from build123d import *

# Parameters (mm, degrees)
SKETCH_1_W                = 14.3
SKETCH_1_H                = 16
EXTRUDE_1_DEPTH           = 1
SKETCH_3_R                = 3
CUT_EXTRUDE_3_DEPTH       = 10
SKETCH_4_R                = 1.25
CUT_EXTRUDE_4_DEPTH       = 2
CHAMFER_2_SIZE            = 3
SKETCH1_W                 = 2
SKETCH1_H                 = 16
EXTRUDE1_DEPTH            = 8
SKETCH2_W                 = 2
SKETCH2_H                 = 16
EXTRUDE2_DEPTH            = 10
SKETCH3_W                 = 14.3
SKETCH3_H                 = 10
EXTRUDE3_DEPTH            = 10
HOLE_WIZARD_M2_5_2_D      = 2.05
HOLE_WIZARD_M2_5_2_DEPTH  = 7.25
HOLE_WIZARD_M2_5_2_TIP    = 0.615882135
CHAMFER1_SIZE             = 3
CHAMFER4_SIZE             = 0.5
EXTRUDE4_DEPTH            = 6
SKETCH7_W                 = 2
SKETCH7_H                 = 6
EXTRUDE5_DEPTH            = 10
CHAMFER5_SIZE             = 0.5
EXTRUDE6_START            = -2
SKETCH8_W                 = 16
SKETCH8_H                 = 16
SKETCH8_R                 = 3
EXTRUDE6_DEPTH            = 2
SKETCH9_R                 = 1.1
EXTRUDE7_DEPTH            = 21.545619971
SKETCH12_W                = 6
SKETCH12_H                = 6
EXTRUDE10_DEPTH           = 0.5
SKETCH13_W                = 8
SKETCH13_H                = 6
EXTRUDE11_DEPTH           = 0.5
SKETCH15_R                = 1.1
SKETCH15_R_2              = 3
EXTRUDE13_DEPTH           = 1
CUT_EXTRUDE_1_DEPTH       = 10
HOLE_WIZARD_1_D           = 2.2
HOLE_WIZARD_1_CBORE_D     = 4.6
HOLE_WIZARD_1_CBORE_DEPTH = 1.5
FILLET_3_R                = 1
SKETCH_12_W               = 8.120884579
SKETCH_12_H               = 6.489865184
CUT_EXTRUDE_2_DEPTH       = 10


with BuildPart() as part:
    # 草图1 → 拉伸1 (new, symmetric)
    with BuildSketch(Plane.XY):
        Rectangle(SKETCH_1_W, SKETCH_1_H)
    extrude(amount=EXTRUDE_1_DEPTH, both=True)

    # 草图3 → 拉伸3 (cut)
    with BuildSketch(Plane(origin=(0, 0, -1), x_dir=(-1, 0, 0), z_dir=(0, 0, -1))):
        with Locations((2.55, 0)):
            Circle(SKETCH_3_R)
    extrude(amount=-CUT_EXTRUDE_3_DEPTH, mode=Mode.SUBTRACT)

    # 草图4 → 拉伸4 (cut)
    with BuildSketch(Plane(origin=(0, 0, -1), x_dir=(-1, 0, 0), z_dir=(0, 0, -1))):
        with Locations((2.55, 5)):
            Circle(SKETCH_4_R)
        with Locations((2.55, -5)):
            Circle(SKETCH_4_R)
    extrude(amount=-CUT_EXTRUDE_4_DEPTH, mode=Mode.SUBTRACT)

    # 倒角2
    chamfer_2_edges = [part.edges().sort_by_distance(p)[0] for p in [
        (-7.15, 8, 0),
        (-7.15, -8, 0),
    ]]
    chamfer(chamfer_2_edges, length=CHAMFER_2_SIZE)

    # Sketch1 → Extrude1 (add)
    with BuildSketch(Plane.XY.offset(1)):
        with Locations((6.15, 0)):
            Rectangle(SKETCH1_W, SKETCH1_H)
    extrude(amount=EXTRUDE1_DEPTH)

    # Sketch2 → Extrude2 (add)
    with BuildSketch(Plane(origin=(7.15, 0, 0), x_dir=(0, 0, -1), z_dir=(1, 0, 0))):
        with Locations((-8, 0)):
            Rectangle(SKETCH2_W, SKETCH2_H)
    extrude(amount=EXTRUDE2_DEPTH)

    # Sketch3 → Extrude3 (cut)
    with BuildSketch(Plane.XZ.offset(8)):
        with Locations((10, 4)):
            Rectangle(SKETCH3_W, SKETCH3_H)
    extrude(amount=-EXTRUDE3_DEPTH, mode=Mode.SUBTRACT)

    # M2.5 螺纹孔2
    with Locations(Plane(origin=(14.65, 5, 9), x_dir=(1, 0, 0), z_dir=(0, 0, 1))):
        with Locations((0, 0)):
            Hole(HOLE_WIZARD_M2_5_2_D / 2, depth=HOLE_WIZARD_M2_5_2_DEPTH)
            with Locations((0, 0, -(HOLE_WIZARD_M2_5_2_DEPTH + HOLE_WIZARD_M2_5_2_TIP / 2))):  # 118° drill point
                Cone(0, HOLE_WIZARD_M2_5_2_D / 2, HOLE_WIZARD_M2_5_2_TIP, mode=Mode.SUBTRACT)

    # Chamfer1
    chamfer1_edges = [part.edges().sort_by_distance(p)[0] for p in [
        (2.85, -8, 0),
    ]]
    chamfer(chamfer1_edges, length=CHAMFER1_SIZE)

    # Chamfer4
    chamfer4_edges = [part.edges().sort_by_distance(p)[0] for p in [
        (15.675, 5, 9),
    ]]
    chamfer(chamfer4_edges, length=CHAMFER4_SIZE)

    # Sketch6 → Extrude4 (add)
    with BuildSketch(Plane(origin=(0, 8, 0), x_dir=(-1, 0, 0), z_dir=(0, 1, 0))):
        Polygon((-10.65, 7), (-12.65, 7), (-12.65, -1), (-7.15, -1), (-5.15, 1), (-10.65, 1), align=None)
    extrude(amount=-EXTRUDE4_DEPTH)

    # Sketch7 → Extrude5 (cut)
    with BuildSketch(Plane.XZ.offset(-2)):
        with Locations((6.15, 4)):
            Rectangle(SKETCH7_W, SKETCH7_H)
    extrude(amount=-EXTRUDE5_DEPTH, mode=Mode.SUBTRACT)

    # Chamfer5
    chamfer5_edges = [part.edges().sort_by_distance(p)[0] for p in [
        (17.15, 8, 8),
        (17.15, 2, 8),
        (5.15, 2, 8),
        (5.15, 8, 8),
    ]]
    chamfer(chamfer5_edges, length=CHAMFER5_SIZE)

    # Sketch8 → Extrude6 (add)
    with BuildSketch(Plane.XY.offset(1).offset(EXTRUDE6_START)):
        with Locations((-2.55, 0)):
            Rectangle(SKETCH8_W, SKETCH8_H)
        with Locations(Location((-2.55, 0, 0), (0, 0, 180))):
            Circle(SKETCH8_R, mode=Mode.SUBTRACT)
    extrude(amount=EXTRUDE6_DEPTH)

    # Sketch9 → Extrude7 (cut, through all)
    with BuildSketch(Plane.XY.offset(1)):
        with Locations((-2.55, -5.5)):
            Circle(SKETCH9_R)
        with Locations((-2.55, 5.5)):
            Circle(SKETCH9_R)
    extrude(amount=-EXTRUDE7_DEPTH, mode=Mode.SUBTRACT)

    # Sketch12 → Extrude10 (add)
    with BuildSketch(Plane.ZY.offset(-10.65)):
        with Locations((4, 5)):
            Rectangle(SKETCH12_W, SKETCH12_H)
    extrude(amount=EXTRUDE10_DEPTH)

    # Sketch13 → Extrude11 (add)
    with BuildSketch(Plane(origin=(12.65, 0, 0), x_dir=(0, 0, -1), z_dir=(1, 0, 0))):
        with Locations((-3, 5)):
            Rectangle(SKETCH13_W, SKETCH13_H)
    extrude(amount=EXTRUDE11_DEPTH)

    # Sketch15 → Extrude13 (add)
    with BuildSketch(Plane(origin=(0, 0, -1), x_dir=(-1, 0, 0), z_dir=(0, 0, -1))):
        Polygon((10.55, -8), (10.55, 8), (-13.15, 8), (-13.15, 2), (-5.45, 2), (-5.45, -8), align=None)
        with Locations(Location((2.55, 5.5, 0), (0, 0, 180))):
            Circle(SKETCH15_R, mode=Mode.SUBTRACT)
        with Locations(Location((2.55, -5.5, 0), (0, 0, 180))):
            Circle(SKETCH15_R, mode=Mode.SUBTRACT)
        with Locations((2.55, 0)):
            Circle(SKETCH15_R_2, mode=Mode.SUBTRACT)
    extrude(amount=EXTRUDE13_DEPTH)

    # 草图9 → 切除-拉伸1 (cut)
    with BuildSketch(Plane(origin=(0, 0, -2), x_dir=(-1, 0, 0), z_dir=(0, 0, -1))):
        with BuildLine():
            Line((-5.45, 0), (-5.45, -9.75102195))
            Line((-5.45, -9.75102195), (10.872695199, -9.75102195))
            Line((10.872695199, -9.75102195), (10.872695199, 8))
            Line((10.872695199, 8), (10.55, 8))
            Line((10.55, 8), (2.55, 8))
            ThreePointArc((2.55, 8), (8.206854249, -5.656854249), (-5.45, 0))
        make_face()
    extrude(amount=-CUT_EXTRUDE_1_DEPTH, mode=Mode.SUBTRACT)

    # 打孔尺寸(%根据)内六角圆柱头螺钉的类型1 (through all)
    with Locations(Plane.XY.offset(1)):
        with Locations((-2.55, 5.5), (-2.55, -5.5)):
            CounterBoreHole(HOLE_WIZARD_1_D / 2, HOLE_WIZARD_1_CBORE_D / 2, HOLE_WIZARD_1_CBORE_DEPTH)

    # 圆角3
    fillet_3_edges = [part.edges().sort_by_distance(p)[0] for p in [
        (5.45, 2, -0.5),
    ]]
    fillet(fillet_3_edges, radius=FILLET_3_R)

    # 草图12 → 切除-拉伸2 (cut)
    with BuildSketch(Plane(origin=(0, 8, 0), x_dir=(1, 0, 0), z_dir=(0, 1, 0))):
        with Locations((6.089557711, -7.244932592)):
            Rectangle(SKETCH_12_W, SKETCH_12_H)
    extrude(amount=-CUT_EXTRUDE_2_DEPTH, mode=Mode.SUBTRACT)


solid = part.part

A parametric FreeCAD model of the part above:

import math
import FreeCAD as App
import Part
import Sketcher
Q = App.Units.Quantity


def edges_at(feature, points):
    """Names of the edges that pass closest to the given points."""
    edges = feature.Shape.Edges
    near = lambda p: min(range(len(edges)), key=lambda i: edges[i].distToShape(Part.Vertex(*p))[0])
    return sorted({f"Edge{near(p) + 1}" for p in points})


def add_polygon(sketch, points):
    """Adds a closed chain of lines whose ends are joined by coincident constraints."""
    first, n = sketch.GeometryCount, len(points)
    for a, b in zip(points, points[1:] + points[:1]):
        sketch.addGeometry(Part.LineSegment(App.Vector(*a, 0), App.Vector(*b, 0)), False)
    for i in range(n):
        sketch.addConstraint(Sketcher.Constraint("Coincident", first + i, 2, first + (i + 1) % n, 1))

doc = App.newDocument("Part")
params = doc.addObject("Spreadsheet::Sheet", "Params")
for row, (alias, value) in enumerate([
    ("sketch1_height", "16 mm"),
    ("sketch1_width", "14.3 mm"),
    ("pad1_length", "2 mm"),
    ("sketch2_diameter", "6 mm"),
    ("pocket1_length", "10 mm"),
    ("sketch3_diameter", "2.5 mm"),
    ("pocket2_length", "2 mm"),
    ("chamfer_size", "3 mm"),
    ("sketch4_width", "2 mm"),
    ("sketch4_height", "16 mm"),
    ("pad2_length", "8 mm"),
    ("sketch5_width", "16 mm"),
    ("sketch5_height", "2 mm"),
    ("pad3_length", "10 mm"),
    ("sketch6_height", "10 mm"),
    ("sketch6_width", "14.3 mm"),
    ("pocket3_length", "10 mm"),
    ("sketch7_diameter", "2.05 mm"),
    ("hole_diameter", "2.05 mm"),
    ("hole_depth", "7.25 mm"),
    ("chamfer2_size", "3 mm"),
    ("chamfer3_size", "0.5 mm"),
    ("sketch8_width", "2 mm"),
    ("sketch8_height", "8 mm"),
    ("sketch8_height2", "6 mm"),
    ("sketch8_width2", "5.5 mm"),
    ("pad4_length", "6 mm"),
    ("sketch9_width", "2 mm"),
    ("sketch9_height", "6 mm"),
    ("pocket4_length", "10 mm"),
    ("chamfer4_size", "0.5 mm"),
    ("sketch10_diameter", "6 mm"),
    ("sketch10_width", "16 mm"),
    ("pad5_length", "2 mm"),
    ("sketch11_diameter", "2.2 mm"),
    ("sketch12_width", "6 mm"),
    ("pad6_length", "0.5 mm"),
    ("sketch13_width", "6 mm"),
    ("sketch13_height", "8 mm"),
    ("pad7_length", "0.5 mm"),
    ("sketch14_diameter", "6 mm"),
    ("sketch14_diameter2", "2.2 mm"),
    ("sketch14_width", "16 mm"),
    ("sketch14_height", "6 mm"),
    ("sketch14_width2", "23.7 mm"),
    ("pad8_length", "1 mm"),
    ("sketch15_radius", "8 mm"),
    ("pocket6_length", "10 mm"),
    ("sketch16_diameter", "2.2 mm"),
    ("hole2_diameter", "2.2 mm"),
    ("hole2_cbore_diameter", "4.6 mm"),
    ("hole2_cbore_depth", "1.5 mm"),
    ("fillet_radius", "1 mm"),
    ("pocket7_length", "10 mm"),
], start=1):
    params.set(f"A{row}", alias)
    params.set(f"B{row}", "=" + value)
    params.setAlias(f"B{row}", alias)

body = doc.addObject("PartDesign::Body", "Body")

# Sketch on XY plane
sketch1 = doc.addObject("Sketcher::SketchObject", "Sketch")
body.addObject(sketch1)
sketch1.AttachmentSupport = (doc.XY_Plane, [""])
sketch1.MapMode = "FlatFace"
add_polygon(sketch1, [(-7, 8), (-7, -8), (7, -8), (7, 8)])  # lines 0-3
sketch1.addConstraint(Sketcher.Constraint("Vertical", 0))
sketch1.addConstraint(Sketcher.Constraint("Horizontal", 1))
sketch1.addConstraint(Sketcher.Constraint("Vertical", 2))
sketch1.addConstraint(Sketcher.Constraint("Horizontal", 3))
sketch1.addConstraint(Sketcher.Constraint("Symmetric", 0, 2, 2, 2, -1, 1))
sketch1.addConstraint(Sketcher.Constraint("DistanceY", 0, 2, 0, 1, Q("16 mm")))
sketch1.addConstraint(Sketcher.Constraint("DistanceX", 1, 1, 1, 2, Q("14.3 mm")))
sketch1.setExpression("Constraints[9]", "Params.sketch1_height")
sketch1.setExpression("Constraints[10]", "Params.sketch1_width")
pad1 = doc.addObject("PartDesign::Pad", "Pad")
body.addObject(pad1)
pad1.Profile = sketch1
pad1.setExpression("Length", "Params.pad1_length")
pad1.Midplane = True

# Sketch on XY plane
sketch2 = doc.addObject("Sketcher::SketchObject", "Sketch001")
body.addObject(sketch2)
sketch2.AttachmentSupport = (doc.XY_Plane, [""])
sketch2.MapMode = "FlatFace"
sketch2.AttachmentOffset = App.Placement(App.Vector(0, 0, -1), App.Rotation())
sketch2.addGeometry(Part.Circle(App.Vector(-2.5, 0, 0), App.Vector(0, 0, 1), 3), False)
sketch2.addConstraint(Sketcher.Constraint("PointOnObject", 0, 3, -1))
sketch2.addConstraint(Sketcher.Constraint("Diameter", 0, Q("6 mm")))
sketch2.addConstraint(Sketcher.Constraint("DistanceX", 0, 3, -1, 1, Q("2.55 mm")))
sketch2.setExpression("Constraints[1]", "Params.sketch2_diameter")
pocket1 = doc.addObject("PartDesign::Pocket", "Pocket")
body.addObject(pocket1)
pocket1.Profile = sketch2
pocket1.setExpression("Length", "Params.pocket1_length")
pocket1.Reversed = True

# Sketch on XY plane
sketch3 = doc.addObject("Sketcher::SketchObject", "Sketch002")
body.addObject(sketch3)
sketch3.AttachmentSupport = (doc.XY_Plane, [""])
sketch3.MapMode = "FlatFace"
sketch3.AttachmentOffset = App.Placement(App.Vector(0, 0, -1), App.Rotation())
sketch3.addGeometry(Part.Circle(App.Vector(-2.5, 5, 0), App.Vector(0, 0, 1), 1.2), False)
sketch3.addGeometry(Part.Circle(App.Vector(-2.5, -5, 0), App.Vector(0, 0, 1), 1.2), False)
sketch3.addConstraint(Sketcher.Constraint("Equal", 0, 1))
sketch3.addConstraint(Sketcher.Constraint("Symmetric", 0, 3, 1, 3, -1))
sketch3.addConstraint(Sketcher.Constraint("Diameter", 0, Q("2.5 mm")))
sketch3.addConstraint(Sketcher.Constraint("DistanceY", -1, 1, 0, 3, Q("5 mm")))
sketch3.addConstraint(Sketcher.Constraint("DistanceX", 0, 3, -1, 1, Q("2.55 mm")))
sketch3.setExpression("Constraints[2]", "Params.sketch3_diameter")
pocket2 = doc.addObject("PartDesign::Pocket", "Pocket001")
body.addObject(pocket2)
pocket2.Profile = sketch3
pocket2.setExpression("Length", "Params.pocket2_length")
pocket2.Reversed = True
doc.recompute()

chamfer = doc.addObject("PartDesign::Chamfer", "Chamfer")
body.addObject(chamfer)
chamfer.Base = (pocket2, edges_at(pocket2, [(-7.15, 8, 0), (-7.15, -8, 0)]))
chamfer.setExpression("Size", "Params.chamfer_size")

# Sketch on XY plane
sketch4 = doc.addObject("Sketcher::SketchObject", "Sketch003")
body.addObject(sketch4)
sketch4.AttachmentSupport = (doc.XY_Plane, [""])
sketch4.MapMode = "FlatFace"
sketch4.AttachmentOffset = App.Placement(App.Vector(0, 0, 1), App.Rotation())
add_polygon(sketch4, [(5.2, 8), (5.2, -8), (7.2, -8), (7.2, 8)])  # lines 0-3
sketch4.addConstraint(Sketcher.Constraint("Vertical", 0))
sketch4.addConstraint(Sketcher.Constraint("Horizontal", 1))
sketch4.addConstraint(Sketcher.Constraint("Vertical", 2))
sketch4.addConstraint(Sketcher.Constraint("Horizontal", 3))
sketch4.addConstraint(Sketcher.Constraint("DistanceX", 1, 1, 1, 2, Q("2 mm")))
sketch4.addConstraint(Sketcher.Constraint("DistanceY", 0, 2, 0, 1, Q("16 mm")))
sketch4.addConstraint(Sketcher.Constraint("DistanceY", 0, 2, -1, 1, Q("8 mm")))
sketch4.addConstraint(Sketcher.Constraint("DistanceX", -1, 1, 0, 2, Q("5.15 mm")))
sketch4.setExpression("Constraints[8]", "Params.sketch4_width")
sketch4.setExpression("Constraints[9]", "Params.sketch4_height")
pad2 = doc.addObject("PartDesign::Pad", "Pad001")
body.addObject(pad2)
pad2.Profile = sketch4
pad2.setExpression("Length", "Params.pad2_length")

# Sketch on YZ plane
sketch5 = doc.addObject("Sketcher::SketchObject", "Sketch004")
body.addObject(sketch5)
sketch5.AttachmentSupport = (doc.YZ_Plane, [""])
sketch5.MapMode = "FlatFace"
sketch5.AttachmentOffset = App.Placement(App.Vector(0, 0, 7.15), App.Rotation())
add_polygon(sketch5, [(8, 9), (-8, 9), (-8, 7), (8, 7)])  # lines 0-3
sketch5.addConstraint(Sketcher.Constraint("Horizontal", 0))
sketch5.addConstraint(Sketcher.Constraint("Vertical", 1))
sketch5.addConstraint(Sketcher.Constraint("Horizontal", 2))
sketch5.addConstraint(Sketcher.Constraint("Vertical", 3))
sketch5.addConstraint(Sketcher.Constraint("DistanceX", 0, 2, 0, 1, Q("16 mm")))
sketch5.addConstraint(Sketcher.Constraint("DistanceY", 1, 2, 1, 1, Q("2 mm")))
sketch5.addConstraint(Sketcher.Constraint("DistanceX", 0, 2, -1, 1, Q("8 mm")))
sketch5.addConstraint(Sketcher.Constraint("DistanceY", -1, 1, 0, 2, Q("9 mm")))
sketch5.setExpression("Constraints[8]", "Params.sketch5_width")
sketch5.setExpression("Constraints[9]", "Params.sketch5_height")
pad3 = doc.addObject("PartDesign::Pad", "Pad002")
body.addObject(pad3)
pad3.Profile = sketch5
pad3.setExpression("Length", "Params.pad3_length")

# Sketch on XZ plane
sketch6 = doc.addObject("Sketcher::SketchObject", "Sketch005")
body.addObject(sketch6)
sketch6.AttachmentSupport = (doc.XZ_Plane, [""])
sketch6.MapMode = "FlatFace"
sketch6.AttachmentOffset = App.Placement(App.Vector(0, 0, 8), App.Rotation())
add_polygon(sketch6, [(3, 9), (3, -1), (17, -1), (17, 9)])  # lines 0-3
sketch6.addConstraint(Sketcher.Constraint("Vertical", 0))
sketch6.addConstraint(Sketcher.Constraint("Horizontal", 1))
sketch6.addConstraint(Sketcher.Constraint("Vertical", 2))
sketch6.addConstraint(Sketcher.Constraint("Horizontal", 3))
sketch6.addConstraint(Sketcher.Constraint("DistanceY", 0, 2, 0, 1, Q("10 mm")))
sketch6.addConstraint(Sketcher.Constraint("DistanceX", 1, 1, 1, 2, Q("14.3 mm")))
sketch6.addConstraint(Sketcher.Constraint("DistanceY", 0, 2, -1, 1, Q("1 mm")))
sketch6.addConstraint(Sketcher.Constraint("DistanceX", -1, 1, 0, 2, Q("2.85 mm")))
sketch6.setExpression("Constraints[8]", "Params.sketch6_height")
sketch6.setExpression("Constraints[9]", "Params.sketch6_width")
pocket3 = doc.addObject("PartDesign::Pocket", "Pocket002")
body.addObject(pocket3)
pocket3.Profile = sketch6
pocket3.setExpression("Length", "Params.pocket3_length")

# Sketch on XY plane
sketch7 = doc.addObject("Sketcher::SketchObject", "Sketch006")
body.addObject(sketch7)
sketch7.AttachmentSupport = (doc.XY_Plane, [""])
sketch7.MapMode = "FlatFace"
sketch7.AttachmentOffset = App.Placement(App.Vector(0, 0, 9), App.Rotation())
sketch7.addGeometry(Part.Circle(App.Vector(14.7, 5, 0), App.Vector(0, 0, 1), 1), False)
sketch7.addConstraint(Sketcher.Constraint("Diameter", 0, Q("2.05 mm")))
sketch7.addConstraint(Sketcher.Constraint("DistanceY", -1, 1, 0, 3, Q("5 mm")))
sketch7.addConstraint(Sketcher.Constraint("DistanceX", -1, 1, 0, 3, Q("14.65 mm")))
sketch7.setExpression("Constraints[0]", "Params.sketch7_diameter")
doc.recompute()
hole = doc.addObject("PartDesign::Hole", "Hole")
body.addObject(hole)
hole.Profile = sketch7
hole.ThreadType = "None"
hole.setExpression("Diameter", "Params.hole_diameter")
hole.DepthType = "Dimension"
hole.setExpression("Depth", "Params.hole_depth")
hole.DrillPoint = "Angled"
hole.DrillPointAngle = 118
doc.recompute()

chamfer2 = doc.addObject("PartDesign::Chamfer", "Chamfer001")
body.addObject(chamfer2)
chamfer2.Base = (hole, edges_at(hole, [(2.85, -8, 0)]))
chamfer2.setExpression("Size", "Params.chamfer2_size")
doc.recompute()

chamfer3 = doc.addObject("PartDesign::Chamfer", "Chamfer002")
body.addObject(chamfer3)
chamfer3.Base = (chamfer2, edges_at(chamfer2, [(15.675, 5, 9)]))
chamfer3.setExpression("Size", "Params.chamfer3_size")

# Sketch on XZ plane
sketch8 = doc.addObject("Sketcher::SketchObject", "Sketch007")
body.addObject(sketch8)
sketch8.AttachmentSupport = (doc.XZ_Plane, [""])
sketch8.MapMode = "FlatFace"
sketch8.AttachmentOffset = App.Placement(App.Vector(0, 0, -8), App.Rotation())
add_polygon(sketch8, [(10.7, 7), (12.7, 7), (12.7, -1), (7.2, -1), (5.2, 1), (10.7, 1)])  # lines 0-5
sketch8.addConstraint(Sketcher.Constraint("Horizontal", 0))
sketch8.addConstraint(Sketcher.Constraint("Vertical", 1))
sketch8.addConstraint(Sketcher.Constraint("Horizontal", 2))
sketch8.addConstraint(Sketcher.Constraint("Horizontal", 4))
sketch8.addConstraint(Sketcher.Constraint("Vertical", 5))
sketch8.addConstraint(Sketcher.Constraint("Equal", 2, 4))
sketch8.addConstraint(Sketcher.Constraint("DistanceX", 0, 1, 0, 2, Q("2 mm")))
sketch8.addConstraint(Sketcher.Constraint("DistanceY", 1, 2, 1, 1, Q("8 mm")))
sketch8.addConstraint(Sketcher.Constraint("DistanceY", 5, 1, 5, 2, Q("6 mm")))
sketch8.addConstraint(Sketcher.Constraint("DistanceX", 2, 2, 2, 1, Q("5.5 mm")))
sketch8.addConstraint(Sketcher.Constraint("DistanceY", -1, 1, 0, 2, Q("7 mm")))
sketch8.addConstraint(Sketcher.Constraint("DistanceX", -1, 1, 0, 2, Q("12.65 mm")))
sketch8.setExpression("Constraints[12]", "Params.sketch8_width")
sketch8.setExpression("Constraints[13]", "Params.sketch8_height")
sketch8.setExpression("Constraints[14]", "Params.sketch8_height2")
sketch8.setExpression("Constraints[15]", "Params.sketch8_width2")
pad4 = doc.addObject("PartDesign::Pad", "Pad003")
body.addObject(pad4)
pad4.Profile = sketch8
pad4.setExpression("Length", "Params.pad4_length")

# Sketch on XZ plane
sketch9 = doc.addObject("Sketcher::SketchObject", "Sketch008")
body.addObject(sketch9)
sketch9.AttachmentSupport = (doc.XZ_Plane, [""])
sketch9.MapMode = "FlatFace"
sketch9.AttachmentOffset = App.Placement(App.Vector(0, 0, -2), App.Rotation())
add_polygon(sketch9, [(5.2, 7), (5.2, 1), (7.2, 1), (7.2, 7)])  # lines 0-3
sketch9.addConstraint(Sketcher.Constraint("Vertical", 0))
sketch9.addConstraint(Sketcher.Constraint("Horizontal", 1))
sketch9.addConstraint(Sketcher.Constraint("Vertical", 2))
sketch9.addConstraint(Sketcher.Constraint("Horizontal", 3))
sketch9.addConstraint(Sketcher.Constraint("DistanceX", 1, 1, 1, 2, Q("2 mm")))
sketch9.addConstraint(Sketcher.Constraint("DistanceY", 0, 2, 0, 1, Q("6 mm")))
sketch9.addConstraint(Sketcher.Constraint("DistanceY", -1, 1, 0, 2, Q("1 mm")))
sketch9.addConstraint(Sketcher.Constraint("DistanceX", -1, 1, 0, 2, Q("5.15 mm")))
sketch9.setExpression("Constraints[8]", "Params.sketch9_width")
sketch9.setExpression("Constraints[9]", "Params.sketch9_height")
pocket4 = doc.addObject("PartDesign::Pocket", "Pocket003")
body.addObject(pocket4)
pocket4.Profile = sketch9
pocket4.setExpression("Length", "Params.pocket4_length")
doc.recompute()

chamfer4 = doc.addObject("PartDesign::Chamfer", "Chamfer003")
body.addObject(chamfer4)
chamfer4.Base = (pocket4, edges_at(pocket4, [
    (17.15, 8, 8),
    (17.15, 2, 8),
    (5.15, 2, 8),
    (5.15, 8, 8),
]))
chamfer4.setExpression("Size", "Params.chamfer4_size")

# Sketch on XY plane
sketch10 = doc.addObject("Sketcher::SketchObject", "Sketch009")
body.addObject(sketch10)
sketch10.AttachmentSupport = (doc.XY_Plane, [""])
sketch10.MapMode = "FlatFace"
sketch10.AttachmentOffset = App.Placement(App.Vector(0, 0, -1), App.Rotation())
add_polygon(sketch10, [(-10.6, 8), (-10.6, -8), (5.5, -8), (5.5, 8)])  # lines 0-3
sketch10.addGeometry(Part.Circle(App.Vector(-2.5, 0, 0), App.Vector(0, 0, 1), 3), False)  # 4
sketch10.addConstraint(Sketcher.Constraint("Vertical", 0))
sketch10.addConstraint(Sketcher.Constraint("Horizontal", 1))
sketch10.addConstraint(Sketcher.Constraint("Vertical", 2))
sketch10.addConstraint(Sketcher.Constraint("Horizontal", 3))
sketch10.addConstraint(Sketcher.Constraint("PointOnObject", 4, 3, -1))
sketch10.addConstraint(Sketcher.Constraint("Equal", 3, 0))
sketch10.addConstraint(Sketcher.Constraint("Diameter", 4, Q("6 mm")))
sketch10.addConstraint(Sketcher.Constraint("DistanceX", 1, 1, 1, 2, Q("16 mm")))
sketch10.addConstraint(Sketcher.Constraint("DistanceY", 0, 2, -1, 1, Q("8 mm")))
sketch10.addConstraint(Sketcher.Constraint("DistanceX", 0, 2, 4, 3, Q("8 mm")))
sketch10.addConstraint(Sketcher.Constraint("DistanceX", 4, 3, -1, 1, Q("2.55 mm")))
sketch10.setExpression("Constraints[10]", "Params.sketch10_diameter")
sketch10.setExpression("Constraints[11]", "Params.sketch10_width")
pad5 = doc.addObject("PartDesign::Pad", "Pad004")
body.addObject(pad5)
pad5.Profile = sketch10
pad5.setExpression("Length", "Params.pad5_length")

# Sketch on XY plane
sketch11 = doc.addObject("Sketcher::SketchObject", "Sketch010")
body.addObject(sketch11)
sketch11.AttachmentSupport = (doc.XY_Plane, [""])
sketch11.MapMode = "FlatFace"
sketch11.AttachmentOffset = App.Placement(App.Vector(0, 0, 1), App.Rotation())
sketch11.addGeometry(Part.Circle(App.Vector(-2.5, -5.5, 0), App.Vector(0, 0, 1), 1.1), False)
sketch11.addGeometry(Part.Circle(App.Vector(-2.5, 5.5, 0), App.Vector(0, 0, 1), 1.1), False)
sketch11.addConstraint(Sketcher.Constraint("Equal", 0, 1))
sketch11.addConstraint(Sketcher.Constraint("Symmetric", 0, 3, 1, 3, -1))
sketch11.addConstraint(Sketcher.Constraint("Diameter", 0, Q("2.2 mm")))
sketch11.addConstraint(Sketcher.Constraint("DistanceY", 0, 3, 1, 3, Q("11 mm")))
sketch11.addConstraint(Sketcher.Constraint("DistanceX", 0, 3, -1, 1, Q("2.55 mm")))
sketch11.setExpression("Constraints[2]", "Params.sketch11_diameter")
pocket5 = doc.addObject("PartDesign::Pocket", "Pocket004")
body.addObject(pocket5)
pocket5.Profile = sketch11
pocket5.Type = "ThroughAll"

# Sketch on YZ plane
sketch12 = doc.addObject("Sketcher::SketchObject", "Sketch011")
body.addObject(sketch12)
sketch12.AttachmentSupport = (doc.YZ_Plane, [""])
sketch12.MapMode = "FlatFace"
sketch12.AttachmentOffset = App.Placement(App.Vector(0, 0, 10.65), App.Rotation())
add_polygon(sketch12, [(8, 1), (2, 1), (2, 7), (8, 7)])  # lines 0-3
sketch12.addConstraint(Sketcher.Constraint("Horizontal", 0))
sketch12.addConstraint(Sketcher.Constraint("Vertical", 1))
sketch12.addConstraint(Sketcher.Constraint("Horizontal", 2))
sketch12.addConstraint(Sketcher.Constraint("Vertical", 3))
sketch12.addConstraint(Sketcher.Constraint("Equal", 2, 1))
sketch12.addConstraint(Sketcher.Constraint("DistanceX", 0, 2, 0, 1, Q("6 mm")))
sketch12.addConstraint(Sketcher.Constraint("DistanceX", -1, 1, 0, 2, Q("2 mm")))
sketch12.addConstraint(Sketcher.Constraint("DistanceY", -1, 1, 0, 2, Q("1 mm")))
sketch12.setExpression("Constraints[9]", "Params.sketch12_width")
pad6 = doc.addObject("PartDesign::Pad", "Pad005")
body.addObject(pad6)
pad6.Profile = sketch12
pad6.setExpression("Length", "Params.pad6_length")
pad6.Reversed = True

# Sketch on YZ plane
sketch13 = doc.addObject("Sketcher::SketchObject", "Sketch012")
body.addObject(sketch13)
sketch13.AttachmentSupport = (doc.YZ_Plane, [""])
sketch13.MapMode = "FlatFace"
sketch13.AttachmentOffset = App.Placement(App.Vector(0, 0, 12.65), App.Rotation())
add_polygon(sketch13, [(8, 7), (2, 7), (2, -1), (8, -1)])  # lines 0-3
sketch13.addConstraint(Sketcher.Constraint("Horizontal", 0))
sketch13.addConstraint(Sketcher.Constraint("Vertical", 1))
sketch13.addConstraint(Sketcher.Constraint("Horizontal", 2))
sketch13.addConstraint(Sketcher.Constraint("Vertical", 3))
sketch13.addConstraint(Sketcher.Constraint("DistanceX", 0, 2, 0, 1, Q("6 mm")))
sketch13.addConstraint(Sketcher.Constraint("DistanceY", 1, 2, 1, 1, Q("8 mm")))
sketch13.addConstraint(Sketcher.Constraint("DistanceX", -1, 1, 0, 2, Q("2 mm")))
sketch13.addConstraint(Sketcher.Constraint("DistanceY", -1, 1, 0, 2, Q("7 mm")))
sketch13.setExpression("Constraints[8]", "Params.sketch13_width")
sketch13.setExpression("Constraints[9]", "Params.sketch13_height")
pad7 = doc.addObject("PartDesign::Pad", "Pad006")
body.addObject(pad7)
pad7.Profile = sketch13
pad7.setExpression("Length", "Params.pad7_length")

# Sketch on XY plane
sketch14 = doc.addObject("Sketcher::SketchObject", "Sketch013")
body.addObject(sketch14)
sketch14.AttachmentSupport = (doc.XY_Plane, [""])
sketch14.MapMode = "FlatFace"
sketch14.AttachmentOffset = App.Placement(App.Vector(0, 0, -1), App.Rotation())
add_polygon(sketch14, [(-10.6, -8), (-10.6, 8), (13.2, 8), (13.2, 2), (5.5, 2), (5.5, -8)])  # lines 0-5
sketch14.addGeometry(Part.Circle(App.Vector(-2.5, -5.5, 0), App.Vector(0, 0, 1), 1.1), False)  # 6
sketch14.addGeometry(Part.Circle(App.Vector(-2.5, 0, 0), App.Vector(0, 0, 1), 3), False)  # 7
sketch14.addGeometry(Part.Circle(App.Vector(-2.5, 5.5, 0), App.Vector(0, 0, 1), 1.1), False)  # 8
sketch14.addConstraint(Sketcher.Constraint("Vertical", 0))
sketch14.addConstraint(Sketcher.Constraint("Horizontal", 1))
sketch14.addConstraint(Sketcher.Constraint("Vertical", 2))
sketch14.addConstraint(Sketcher.Constraint("Horizontal", 3))
sketch14.addConstraint(Sketcher.Constraint("Vertical", 4))
sketch14.addConstraint(Sketcher.Constraint("Horizontal", 5))
sketch14.addConstraint(Sketcher.Constraint("Equal", 6, 8))
sketch14.addConstraint(Sketcher.Constraint("Symmetric", 6, 3, 8, 3, -1))
sketch14.addConstraint(Sketcher.Constraint("PointOnObject", 7, 3, -1))
sketch14.addConstraint(Sketcher.Constraint("Vertical", 6, 3, 7, 3))
sketch14.addConstraint(Sketcher.Constraint("Equal", 5, 0))
sketch14.addConstraint(Sketcher.Constraint("Diameter", 7, Q("6 mm")))
sketch14.addConstraint(Sketcher.Constraint("Diameter", 6, Q("2.2 mm")))
sketch14.addConstraint(Sketcher.Constraint("DistanceX", 5, 2, 5, 1, Q("16 mm")))
sketch14.addConstraint(Sketcher.Constraint("DistanceY", 2, 2, 2, 1, Q("6 mm")))
sketch14.addConstraint(Sketcher.Constraint("DistanceX", 1, 1, 1, 2, Q("23.7 mm")))
sketch14.addConstraint(Sketcher.Constraint("DistanceY", -1, 1, 0, 2, Q("8 mm")))
sketch14.addConstraint(Sketcher.Constraint("DistanceY", 6, 3, 8, 3, Q("11 mm")))
sketch14.addConstraint(Sketcher.Constraint("DistanceX", 0, 2, 8, 3, Q("8 mm")))
sketch14.addConstraint(Sketcher.Constraint("DistanceX", 6, 3, -1, 1, Q("2.55 mm")))
sketch14.setExpression("Constraints[17]", "Params.sketch14_diameter")
sketch14.setExpression("Constraints[18]", "Params.sketch14_diameter2")
sketch14.setExpression("Constraints[19]", "Params.sketch14_width")
sketch14.setExpression("Constraints[20]", "Params.sketch14_height")
sketch14.setExpression("Constraints[21]", "Params.sketch14_width2")
pad8 = doc.addObject("PartDesign::Pad", "Pad007")
body.addObject(pad8)
pad8.Profile = sketch14
pad8.setExpression("Length", "Params.pad8_length")
pad8.Reversed = True

# Sketch on XY plane
sketch15 = doc.addObject("Sketcher::SketchObject", "Sketch014")
body.addObject(sketch15)
sketch15.AttachmentSupport = (doc.XY_Plane, [""])
sketch15.MapMode = "FlatFace"
sketch15.AttachmentOffset = App.Placement(App.Vector(0, 0, -2), App.Rotation())
sketch15.addGeometry(Part.LineSegment(App.Vector(5, 0, 0), App.Vector(5, -10, 0)), False)
sketch15.addGeometry(Part.LineSegment(App.Vector(5, -10, 0), App.Vector(-11, -10, 0)), False)
sketch15.addGeometry(Part.LineSegment(App.Vector(-11, -10, 0), App.Vector(-11, 8, 0)), False)
sketch15.addGeometry(Part.LineSegment(App.Vector(-11, 8, 0), App.Vector(-3, 8, 0)), False)
sketch15.addGeometry(Part.ArcOfCircle(Part.Circle(App.Vector(-3, 0, 0), App.Vector(0, 0, 1), 8), math.radians(90), math.radians(360)), False)
sketch15.addConstraint(Sketcher.Constraint("Coincident", 0, 2, 1, 1))
sketch15.addConstraint(Sketcher.Constraint("Coincident", 1, 2, 2, 1))
sketch15.addConstraint(Sketcher.Constraint("Coincident", 2, 2, 3, 1))
sketch15.addConstraint(Sketcher.Constraint("Tangent", 3, 2, 4, 1))
sketch15.addConstraint(Sketcher.Constraint("Tangent", 4, 2, 0, 1))
sketch15.addConstraint(Sketcher.Constraint("Vertical", 0))
sketch15.addConstraint(Sketcher.Constraint("Horizontal", 1))
sketch15.addConstraint(Sketcher.Constraint("Vertical", 2))
sketch15.addConstraint(Sketcher.Constraint("Horizontal", 3))
sketch15.addConstraint(Sketcher.Constraint("PointOnObject", 4, 3, -1))
sketch15.addConstraint(Sketcher.Constraint("Radius", 4, Q("8 mm")))
sketch15.addConstraint(Sketcher.Constraint("DistanceX", 4, 3, -1, 1, Q("2.55 mm")))
sketch15.addConstraint(Sketcher.Constraint("DistanceY", 0, 2, 0, 1, Q("9.751022 mm")))
sketch15.addConstraint(Sketcher.Constraint("DistanceX", 1, 2, 1, 1, Q("16.322695 mm")))
sketch15.setExpression("Constraints[10]", "Params.sketch15_radius")
pocket6 = doc.addObject("PartDesign::Pocket", "Pocket005")
body.addObject(pocket6)
pocket6.Profile = sketch15
pocket6.setExpression("Length", "Params.pocket6_length")
pocket6.Reversed = True

# Sketch on XY plane
sketch16 = doc.addObject("Sketcher::SketchObject", "Sketch015")
body.addObject(sketch16)
sketch16.AttachmentSupport = (doc.XY_Plane, [""])
sketch16.MapMode = "FlatFace"
sketch16.AttachmentOffset = App.Placement(App.Vector(0, 0, 1), App.Rotation())
sketch16.addGeometry(Part.Circle(App.Vector(-2.5, 5.5, 0), App.Vector(0, 0, 1), 1.1), False)
sketch16.addGeometry(Part.Circle(App.Vector(-2.5, -5.5, 0), App.Vector(0, 0, 1), 1.1), False)
sketch16.addConstraint(Sketcher.Constraint("Equal", 0, 1))
sketch16.addConstraint(Sketcher.Constraint("Symmetric", 0, 3, 1, 3, -1))
sketch16.addConstraint(Sketcher.Constraint("Diameter", 0, Q("2.2 mm")))
sketch16.addConstraint(Sketcher.Constraint("DistanceY", 1, 3, 0, 3, Q("11 mm")))
sketch16.addConstraint(Sketcher.Constraint("DistanceX", 0, 3, -1, 1, Q("2.55 mm")))
sketch16.setExpression("Constraints[2]", "Params.sketch16_diameter")
doc.recompute()
hole2 = doc.addObject("PartDesign::Hole", "Hole001")
body.addObject(hole2)
hole2.Profile = sketch16
hole2.ThreadType = "None"
hole2.setExpression("Diameter", "Params.hole2_diameter")
hole2.DepthType = "ThroughAll"
hole2.HoleCutType = "Counterbore"
hole2.setExpression("HoleCutDiameter", "Params.hole2_cbore_diameter")
hole2.setExpression("HoleCutDepth", "Params.hole2_cbore_depth")
doc.recompute()

fillet = doc.addObject("PartDesign::Fillet", "Fillet")
body.addObject(fillet)
fillet.Base = (hole2, edges_at(hole2, [(5.45, 2, -0.5)]))
fillet.setExpression("Radius", "Params.fillet_radius")

# Sketch on XZ plane
sketch17 = doc.addObject("Sketcher::SketchObject", "Sketch016")
body.addObject(sketch17)
sketch17.AttachmentSupport = (doc.XZ_Plane, [""])
sketch17.MapMode = "FlatFace"
sketch17.AttachmentOffset = App.Placement(App.Vector(0, 0, -8), App.Rotation())
add_polygon(sketch17, [(2, 4), (2, 10), (10, 10), (10, 4)])  # lines 0-3
sketch17.addConstraint(Sketcher.Constraint("Vertical", 0))
sketch17.addConstraint(Sketcher.Constraint("Horizontal", 1))
sketch17.addConstraint(Sketcher.Constraint("Vertical", 2))
sketch17.addConstraint(Sketcher.Constraint("Horizontal", 3))
sketch17.addConstraint(Sketcher.Constraint("DistanceY", -1, 1, 2, 2, Q("4 mm")))
sketch17.addConstraint(Sketcher.Constraint("DistanceX", -1, 1, 1, 2, Q("10.15 mm")))
sketch17.addConstraint(Sketcher.Constraint("DistanceX", 1, 1, 1, 2, Q("8.120885 mm")))
sketch17.addConstraint(Sketcher.Constraint("DistanceY", 0, 1, 0, 2, Q("6.489865 mm")))
pocket7 = doc.addObject("PartDesign::Pocket", "Pocket006")
body.addObject(pocket7)
pocket7.Profile = sketch17
pocket7.setExpression("Length", "Params.pocket7_length")
pocket7.Reversed = True

doc.recompute()
